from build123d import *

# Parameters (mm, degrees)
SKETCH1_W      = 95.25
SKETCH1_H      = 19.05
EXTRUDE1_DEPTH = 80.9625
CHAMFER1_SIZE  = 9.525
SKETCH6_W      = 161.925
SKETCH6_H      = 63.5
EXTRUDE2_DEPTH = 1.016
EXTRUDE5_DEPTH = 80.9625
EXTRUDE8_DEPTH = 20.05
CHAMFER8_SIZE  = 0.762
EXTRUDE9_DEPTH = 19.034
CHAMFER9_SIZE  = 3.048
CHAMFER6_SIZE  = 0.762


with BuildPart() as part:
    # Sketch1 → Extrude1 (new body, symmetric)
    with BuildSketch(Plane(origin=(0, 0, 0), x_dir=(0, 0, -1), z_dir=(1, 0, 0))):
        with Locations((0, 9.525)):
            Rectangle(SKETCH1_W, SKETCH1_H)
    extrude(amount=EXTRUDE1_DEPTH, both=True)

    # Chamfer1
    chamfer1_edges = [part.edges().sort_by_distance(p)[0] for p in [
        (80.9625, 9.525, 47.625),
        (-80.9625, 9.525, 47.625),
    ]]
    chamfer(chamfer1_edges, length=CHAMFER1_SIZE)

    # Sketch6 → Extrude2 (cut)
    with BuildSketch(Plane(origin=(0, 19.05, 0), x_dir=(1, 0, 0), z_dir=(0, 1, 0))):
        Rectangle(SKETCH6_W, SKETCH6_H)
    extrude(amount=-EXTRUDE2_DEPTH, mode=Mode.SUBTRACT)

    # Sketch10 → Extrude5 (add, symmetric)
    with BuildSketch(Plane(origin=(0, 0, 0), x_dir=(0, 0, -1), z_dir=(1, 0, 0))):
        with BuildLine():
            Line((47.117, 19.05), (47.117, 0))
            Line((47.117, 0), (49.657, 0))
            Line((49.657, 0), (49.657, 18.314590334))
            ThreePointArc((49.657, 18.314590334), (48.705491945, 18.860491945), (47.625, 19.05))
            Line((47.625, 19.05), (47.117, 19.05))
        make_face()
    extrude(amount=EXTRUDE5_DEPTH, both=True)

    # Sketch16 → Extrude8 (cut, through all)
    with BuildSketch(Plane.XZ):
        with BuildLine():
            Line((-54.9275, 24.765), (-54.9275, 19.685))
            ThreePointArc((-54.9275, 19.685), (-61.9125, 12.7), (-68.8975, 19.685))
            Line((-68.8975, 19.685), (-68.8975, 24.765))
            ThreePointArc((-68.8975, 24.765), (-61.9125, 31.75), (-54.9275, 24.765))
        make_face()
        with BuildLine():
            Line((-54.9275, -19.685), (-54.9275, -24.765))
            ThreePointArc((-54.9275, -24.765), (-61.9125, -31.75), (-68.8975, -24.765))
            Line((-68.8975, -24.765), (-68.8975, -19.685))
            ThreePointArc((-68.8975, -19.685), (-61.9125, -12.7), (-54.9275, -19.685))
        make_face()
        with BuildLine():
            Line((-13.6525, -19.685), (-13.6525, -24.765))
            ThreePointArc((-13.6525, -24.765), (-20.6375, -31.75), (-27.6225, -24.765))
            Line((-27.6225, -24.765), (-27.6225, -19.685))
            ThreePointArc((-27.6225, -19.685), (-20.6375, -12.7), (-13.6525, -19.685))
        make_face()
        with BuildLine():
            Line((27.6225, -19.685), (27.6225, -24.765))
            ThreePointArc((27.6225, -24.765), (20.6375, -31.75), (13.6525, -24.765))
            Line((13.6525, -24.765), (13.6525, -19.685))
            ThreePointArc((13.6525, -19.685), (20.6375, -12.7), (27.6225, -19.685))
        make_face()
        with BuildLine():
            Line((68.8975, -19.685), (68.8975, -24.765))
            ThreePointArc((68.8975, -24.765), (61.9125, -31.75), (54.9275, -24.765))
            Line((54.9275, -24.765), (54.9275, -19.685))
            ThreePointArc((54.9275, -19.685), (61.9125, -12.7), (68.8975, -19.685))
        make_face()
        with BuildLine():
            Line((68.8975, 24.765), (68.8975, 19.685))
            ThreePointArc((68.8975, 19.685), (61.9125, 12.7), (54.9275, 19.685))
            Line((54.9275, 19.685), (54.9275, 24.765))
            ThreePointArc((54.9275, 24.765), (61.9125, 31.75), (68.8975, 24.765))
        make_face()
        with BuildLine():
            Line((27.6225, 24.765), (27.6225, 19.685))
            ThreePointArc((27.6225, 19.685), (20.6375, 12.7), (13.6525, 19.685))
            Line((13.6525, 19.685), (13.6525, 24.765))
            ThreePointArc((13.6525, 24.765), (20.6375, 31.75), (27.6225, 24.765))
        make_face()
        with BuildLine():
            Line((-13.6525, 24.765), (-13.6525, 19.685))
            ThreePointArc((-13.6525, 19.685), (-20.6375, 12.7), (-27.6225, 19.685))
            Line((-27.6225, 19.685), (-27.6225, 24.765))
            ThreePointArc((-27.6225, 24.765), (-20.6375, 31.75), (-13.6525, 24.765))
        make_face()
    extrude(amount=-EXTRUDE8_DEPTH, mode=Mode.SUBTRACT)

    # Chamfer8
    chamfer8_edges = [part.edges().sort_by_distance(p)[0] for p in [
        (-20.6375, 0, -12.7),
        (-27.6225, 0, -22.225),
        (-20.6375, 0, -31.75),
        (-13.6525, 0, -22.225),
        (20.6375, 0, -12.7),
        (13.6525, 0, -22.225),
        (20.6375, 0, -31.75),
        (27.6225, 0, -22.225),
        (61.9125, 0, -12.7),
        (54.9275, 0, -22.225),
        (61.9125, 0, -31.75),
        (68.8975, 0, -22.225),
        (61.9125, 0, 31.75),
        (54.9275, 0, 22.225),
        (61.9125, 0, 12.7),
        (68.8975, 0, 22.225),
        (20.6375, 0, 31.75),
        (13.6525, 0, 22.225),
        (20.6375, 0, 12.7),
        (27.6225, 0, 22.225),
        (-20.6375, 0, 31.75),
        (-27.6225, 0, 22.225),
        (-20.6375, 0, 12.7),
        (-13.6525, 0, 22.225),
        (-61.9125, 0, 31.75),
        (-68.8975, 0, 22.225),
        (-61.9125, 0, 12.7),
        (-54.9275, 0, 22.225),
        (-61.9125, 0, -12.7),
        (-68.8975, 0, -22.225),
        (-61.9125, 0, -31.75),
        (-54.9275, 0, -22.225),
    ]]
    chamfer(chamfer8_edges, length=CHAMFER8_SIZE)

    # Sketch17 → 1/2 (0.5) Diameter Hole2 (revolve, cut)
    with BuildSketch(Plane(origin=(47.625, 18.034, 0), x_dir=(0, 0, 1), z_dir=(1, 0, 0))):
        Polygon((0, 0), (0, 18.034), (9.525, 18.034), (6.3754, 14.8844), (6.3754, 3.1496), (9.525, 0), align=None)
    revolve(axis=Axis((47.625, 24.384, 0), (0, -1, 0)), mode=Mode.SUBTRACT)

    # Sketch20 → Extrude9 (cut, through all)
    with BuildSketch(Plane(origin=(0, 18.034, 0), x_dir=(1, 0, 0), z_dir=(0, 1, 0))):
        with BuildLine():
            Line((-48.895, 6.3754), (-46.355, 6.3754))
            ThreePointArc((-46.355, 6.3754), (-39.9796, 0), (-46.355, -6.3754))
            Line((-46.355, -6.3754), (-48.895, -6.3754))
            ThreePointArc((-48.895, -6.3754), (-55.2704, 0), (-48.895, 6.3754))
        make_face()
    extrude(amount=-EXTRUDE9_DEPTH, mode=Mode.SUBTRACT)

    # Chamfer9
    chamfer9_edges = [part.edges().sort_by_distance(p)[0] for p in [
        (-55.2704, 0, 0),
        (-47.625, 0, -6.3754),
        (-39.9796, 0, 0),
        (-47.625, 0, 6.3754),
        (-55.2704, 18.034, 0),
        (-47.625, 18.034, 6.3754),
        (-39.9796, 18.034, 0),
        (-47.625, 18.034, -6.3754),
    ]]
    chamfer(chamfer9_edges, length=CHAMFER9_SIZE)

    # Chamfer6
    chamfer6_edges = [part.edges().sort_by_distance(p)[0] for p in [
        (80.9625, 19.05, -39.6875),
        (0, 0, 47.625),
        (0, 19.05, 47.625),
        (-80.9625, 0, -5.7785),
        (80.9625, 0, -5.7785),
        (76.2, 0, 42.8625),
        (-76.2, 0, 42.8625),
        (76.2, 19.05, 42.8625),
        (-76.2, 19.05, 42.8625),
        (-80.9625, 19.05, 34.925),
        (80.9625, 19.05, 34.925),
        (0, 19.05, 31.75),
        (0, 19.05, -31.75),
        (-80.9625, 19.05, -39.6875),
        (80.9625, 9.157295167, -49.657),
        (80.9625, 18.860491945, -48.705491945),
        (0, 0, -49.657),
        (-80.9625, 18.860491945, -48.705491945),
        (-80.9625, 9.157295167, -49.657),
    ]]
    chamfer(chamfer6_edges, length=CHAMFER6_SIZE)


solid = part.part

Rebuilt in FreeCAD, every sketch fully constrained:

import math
import FreeCAD as App
import Part
import Sketcher
Q = App.Units.Quantity


def edges_at(feature, points):
    """Names of the edges that pass closest to the given points."""
    edges = feature.Shape.Edges
    near = lambda p: min(range(len(edges)), key=lambda i: edges[i].distToShape(Part.Vertex(*p))[0])
    return sorted({f"Edge{near(p) + 1}" for p in points})

doc = App.newDocument("Part")
body = doc.addObject("PartDesign::Body", "Body")

sketch1 = body.newObject("Sketcher::SketchObject", "Sketch")
sketch1.AttachmentSupport = (doc.getObject("YZ_Plane"), [""])
sketch1.MapMode = "FlatFace"
sketch1.addGeometry([
    Part.LineSegment(App.Vector(19.05, 47.625, 0), App.Vector(0, 47.625, 0)),
    Part.LineSegment(App.Vector(0, 47.625, 0), App.Vector(0, -47.625, 0)),
    Part.LineSegment(App.Vector(0, -47.625, 0), App.Vector(19.05, -47.625, 0)),
    Part.LineSegment(App.Vector(19.05, -47.625, 0), App.Vector(19.05, 47.625, 0)),
], False)
sketch1.addConstraint([
    Sketcher.Constraint("Coincident", 0, 2, 1, 1),
    Sketcher.Constraint("Coincident", 1, 2, 2, 1),
    Sketcher.Constraint("Coincident", 2, 2, 3, 1),
    Sketcher.Constraint("Coincident", 3, 2, 0, 1),
    Sketcher.Constraint("Horizontal", 0),
    Sketcher.Constraint("Vertical", 1),
    Sketcher.Constraint("Horizontal", 2),
    Sketcher.Constraint("Vertical", 3),
    Sketcher.Constraint("Symmetric", 0, 2, 1, 2, -1, 1),
    Sketcher.Constraint("DistanceX", 0, 2, 0, 1, Q("0.75 in")),
    Sketcher.Constraint("DistanceY", 1, 2, 1, 1, Q("3.75 in")),
])
pad1 = body.newObject("PartDesign::Pad", "Pad")
pad1.Profile = sketch1
pad1.Length = Q("6.375 in")
pad1.Midplane = True
doc.recompute()

chamfer = body.newObject("PartDesign::Chamfer", "Chamfer")
chamfer.Base = (pad1, edges_at(pad1, [(80.963, 9.525, 47.625), (-80.963, 9.525, 47.625)]))
chamfer.Size = Q("0.375 in")

sketch2 = body.newObject("Sketcher::SketchObject", "Sketch001")
sketch2.AttachmentSupport = (doc.getObject("XZ_Plane"), [""])
sketch2.MapMode = "FlatFace"
sketch2.AttachmentOffset = App.Placement(App.Vector(0, 0, -0.75 * 25.4), App.Rotation())
sketch2.addGeometry([
    Part.LineSegment(App.Vector(-80.9625, -31.75, 0), App.Vector(-80.9625, 31.75, 0)),
    Part.LineSegment(App.Vector(-80.9625, 31.75, 0), App.Vector(80.9625, 31.75, 0)),
    Part.LineSegment(App.Vector(80.9625, 31.75, 0), App.Vector(80.9625, -31.75, 0)),
    Part.LineSegment(App.Vector(80.9625, -31.75, 0), App.Vector(-80.9625, -31.75, 0)),
], False)
sketch2.addConstraint([
    Sketcher.Constraint("Coincident", 0, 2, 1, 1),
    Sketcher.Constraint("Coincident", 1, 2, 2, 1),
    Sketcher.Constraint("Coincident", 2, 2, 3, 1),
    Sketcher.Constraint("Coincident", 3, 2, 0, 1),
    Sketcher.Constraint("Vertical", 0),
    Sketcher.Constraint("Horizontal", 1),
    Sketcher.Constraint("Vertical", 2),
    Sketcher.Constraint("Horizontal", 3),
    Sketcher.Constraint("Symmetric", 0, 2, 2, 2, -1, 1),
    Sketcher.Constraint("DistanceY", 0, 1, 0, 2, Q("2.5 in")),
    Sketcher.Constraint("DistanceX", 1, 1, 1, 2, Q("6.375 in")),
])
pocket1 = body.newObject("PartDesign::Pocket", "Pocket")
pocket1.Profile = sketch2
pocket1.Length = Q("0.04 in")
pocket1.Reversed = True

sketch3 = body.newObject("Sketcher::SketchObject", "Sketch002")
sketch3.AttachmentSupport = (doc.getObject("YZ_Plane"), [""])
sketch3.MapMode = "FlatFace"
sketch3.addGeometry([
    Part.LineSegment(App.Vector(19.05, -47.117, 0), App.Vector(0, -47.117, 0)),
    Part.LineSegment(App.Vector(0, -47.117, 0), App.Vector(0, -49.657, 0)),
    Part.LineSegment(App.Vector(0, -49.657, 0), App.Vector(18.31459, -49.657, 0)),
    Part.ArcOfCircle(Part.Circle(App.Vector(15.875, -47.625, 0), App.Vector(0, 0, 1), 3.175), math.radians(-39.791819), math.radians(0)),
    Part.LineSegment(App.Vector(19.05, -47.625, 0), App.Vector(19.05, -47.117, 0)),
], False)
sketch3.addConstraint([
    Sketcher.Constraint("Coincident", 0, 2, 1, 1),
    Sketcher.Constraint("Coincident", 1, 2, 2, 1),
    Sketcher.Constraint("Coincident", 2, 2, 3, 1),
    Sketcher.Constraint("Tangent", 3, 2, 4, 1),
    Sketcher.Constraint("Coincident", 4, 2, 0, 1),
    Sketcher.Constraint("Horizontal", 0),
    Sketcher.Constraint("Vertical", 1),
    Sketcher.Constraint("Horizontal", 2),
    Sketcher.Constraint("Vertical", 4),
    Sketcher.Constraint("PointOnObject", 0, 2, -2),
    Sketcher.Constraint("DistanceY", 1, 2, 1, 1, Q("0.1 in")),
    Sketcher.Constraint("Radius", 3, Q("0.125 in")),
    Sketcher.Constraint("DistanceX", 0, 2, 0, 1, Q("0.75 in")),
    Sketcher.Constraint("DistanceY", 4, 1, 4, 2, Q("0.02 in")),
    Sketcher.Constraint("DistanceY", 3, 3, -1, 1, Q("1.875 in")),
])
pad2 = body.newObject("PartDesign::Pad", "Pad001")
pad2.Profile = sketch3
pad2.Length = Q("6.375 in")
pad2.Midplane = True

sketch4 = body.newObject("Sketcher::SketchObject", "Sketch003")
sketch4.AttachmentSupport = (doc.getObject("XZ_Plane"), [""])
sketch4.MapMode = "FlatFace"
sketch4.addGeometry([
    Part.LineSegment(App.Vector(-54.9275, 19.685, 0), App.Vector(-54.9275, 24.765, 0)),
    Part.ArcOfCircle(Part.Circle(App.Vector(-61.9125, 24.765, 0), App.Vector(0, 0, 1), 6.985), math.radians(0), math.radians(180)),
    Part.LineSegment(App.Vector(-68.8975, 24.765, 0), App.Vector(-68.8975, 19.685, 0)),
    Part.ArcOfCircle(Part.Circle(App.Vector(-61.9125, 19.685, 0), App.Vector(0, 0, 1), 6.985), math.radians(180), math.radians(360)),
    Part.LineSegment(App.Vector(-54.9275, -24.765, 0), App.Vector(-54.9275, -19.685, 0)),
    Part.ArcOfCircle(Part.Circle(App.Vector(-61.9125, -19.685, 0), App.Vector(0, 0, 1), 6.985), math.radians(0), math.radians(180)),
    Part.LineSegment(App.Vector(-68.8975, -19.685, 0), App.Vector(-68.8975, -24.765, 0)),
    Part.ArcOfCircle(Part.Circle(App.Vector(-61.9125, -24.765, 0), App.Vector(0, 0, 1), 6.985), math.radians(180), math.radians(360)),
    Part.LineSegment(App.Vector(-13.6525, -24.765, 0), App.Vector(-13.6525, -19.685, 0)),
    Part.ArcOfCircle(Part.Circle(App.Vector(-20.6375, -19.685, 0), App.Vector(0, 0, 1), 6.985), math.radians(0), math.radians(180)),
    Part.LineSegment(App.Vector(-27.6225, -19.685, 0), App.Vector(-27.6225, -24.765, 0)),
    Part.ArcOfCircle(Part.Circle(App.Vector(-20.6375, -24.765, 0), App.Vector(0, 0, 1), 6.985), math.radians(180), math.radians(360)),
    Part.LineSegment(App.Vector(27.6225, -24.765, 0), App.Vector(27.6225, -19.685, 0)),
    Part.ArcOfCircle(Part.Circle(App.Vector(20.6375, -19.685, 0), App.Vector(0, 0, 1), 6.985), math.radians(0), math.radians(180)),
    Part.LineSegment(App.Vector(13.6525, -19.685, 0), App.Vector(13.6525, -24.765, 0)),
    Part.ArcOfCircle(Part.Circle(App.Vector(20.6375, -24.765, 0), App.Vector(0, 0, 1), 6.985), math.radians(180), math.radians(360)),
    Part.LineSegment(App.Vector(68.8975, -24.765, 0), App.Vector(68.8975, -19.685, 0)),
    Part.ArcOfCircle(Part.Circle(App.Vector(61.9125, -19.685, 0), App.Vector(0, 0, 1), 6.985), math.radians(0), math.radians(180)),
    Part.LineSegment(App.Vector(54.9275, -19.685, 0), App.Vector(54.9275, -24.765, 0)),
    Part.ArcOfCircle(Part.Circle(App.Vector(61.9125, -24.765, 0), App.Vector(0, 0, 1), 6.985), math.radians(180), math.radians(360)),
    Part.LineSegment(App.Vector(68.8975, 19.685, 0), App.Vector(68.8975, 24.765, 0)),
    Part.ArcOfCircle(Part.Circle(App.Vector(61.9125, 24.765, 0), App.Vector(0, 0, 1), 6.985), math.radians(0), math.radians(180)),
    Part.LineSegment(App.Vector(54.9275, 24.765, 0), App.Vector(54.9275, 19.685, 0)),
    Part.ArcOfCircle(Part.Circle(App.Vector(61.9125, 19.685, 0), App.Vector(0, 0, 1), 6.985), math.radians(180), math.radians(360)),
    Part.LineSegment(App.Vector(27.6225, 19.685, 0), App.Vector(27.6225, 24.765, 0)),
    Part.ArcOfCircle(Part.Circle(App.Vector(20.6375, 24.765, 0), App.Vector(0, 0, 1), 6.985), math.radians(0), math.radians(180)),
    Part.LineSegment(App.Vector(13.6525, 24.765, 0), App.Vector(13.6525, 19.685, 0)),
    Part.ArcOfCircle(Part.Circle(App.Vector(20.6375, 19.685, 0), App.Vector(0, 0, 1), 6.985), math.radians(180), math.radians(360)),
    Part.LineSegment(App.Vector(-13.6525, 19.685, 0), App.Vector(-13.6525, 24.765, 0)),
    Part.ArcOfCircle(Part.Circle(App.Vector(-20.6375, 24.765, 0), App.Vector(0, 0, 1), 6.985), math.radians(0), math.radians(180)),
    Part.LineSegment(App.Vector(-27.6225, 24.765, 0), App.Vector(-27.6225, 19.685, 0)),
    Part.ArcOfCircle(Part.Circle(App.Vector(-20.6375, 19.685, 0), App.Vector(0, 0, 1), 6.985), math.radians(180), math.radians(360)),
], False)
sketch4.addConstraint([
    Sketcher.Constraint("Tangent", 0, 2, 1, 1),
    Sketcher.Constraint("Tangent", 1, 2, 2, 1),
    Sketcher.Constraint("Tangent", 2, 2, 3, 1),
    Sketcher.Constraint("Tangent", 3, 2, 0, 1),
    Sketcher.Constraint("Tangent", 4, 2, 5, 1),
    Sketcher.Constraint("Tangent", 5, 2, 6, 1),
    Sketcher.Constraint("Tangent", 6, 2, 7, 1),
    Sketcher.Constraint("Tangent", 7, 2, 4, 1),
    Sketcher.Constraint("Tangent", 8, 2, 9, 1),
    Sketcher.Constraint("Tangent", 9, 2, 10, 1),
    Sketcher.Constraint("Tangent", 10, 2, 11, 1),
    Sketcher.Constraint("Tangent", 11, 2, 8, 1),
    Sketcher.Constraint("Tangent", 12, 2, 13, 1),
    Sketcher.Constraint("Tangent", 13, 2, 14, 1),
    Sketcher.Constraint("Tangent", 14, 2, 15, 1),
    Sketcher.Constraint("Tangent", 15, 2, 12, 1),
    Sketcher.Constraint("Tangent", 16, 2, 17, 1),
    Sketcher.Constraint("Tangent", 17, 2, 18, 1),
    Sketcher.Constraint("Tangent", 18, 2, 19, 1),
    Sketcher.Constraint("Tangent", 19, 2, 16, 1),
    Sketcher.Constraint("Tangent", 20, 2, 21, 1),
    Sketcher.Constraint("Tangent", 21, 2, 22, 1),
    Sketcher.Constraint("Tangent", 22, 2, 23, 1),
    Sketcher.Constraint("Tangent", 23, 2, 20, 1),
    Sketcher.Constraint("Tangent", 24, 2, 25, 1),
    Sketcher.Constraint("Tangent", 25, 2, 26, 1),
    Sketcher.Constraint("Tangent", 26, 2, 27, 1),
    Sketcher.Constraint("Tangent", 27, 2, 24, 1),
    Sketcher.Constraint("Tangent", 28, 2, 29, 1),
    Sketcher.Constraint("Tangent", 29, 2, 30, 1),
    Sketcher.Constraint("Tangent", 30, 2, 31, 1),
    Sketcher.Constraint("Tangent", 31, 2, 28, 1),
    Sketcher.Constraint("Vertical", 0),
    Sketcher.Constraint("Vertical", 2),
    Sketcher.Constraint("Vertical", 4),
    Sketcher.Constraint("Vertical", 6),
    Sketcher.Constraint("Vertical", 8),
    Sketcher.Constraint("Vertical", 10),
    Sketcher.Constraint("Vertical", 12),
    Sketcher.Constraint("Vertical", 14),
    Sketcher.Constraint("Vertical", 16),
    Sketcher.Constraint("Vertical", 18),
    Sketcher.Constraint("Vertical", 20),
    Sketcher.Constraint("Vertical", 22),
    Sketcher.Constraint("Vertical", 24),
    Sketcher.Constraint("Vertical", 26),
    Sketcher.Constraint("Vertical", 28),
    Sketcher.Constraint("Vertical", 30),
    Sketcher.Constraint("Equal", 3, 5),
    Sketcher.Constraint("Equal", 7, 9),
    Sketcher.Constraint("Equal", 11, 13),
    Sketcher.Constraint("Equal", 15, 17),
    Sketcher.Constraint("Equal", 19, 21),
    Sketcher.Constraint("Equal", 23, 25),
    Sketcher.Constraint("Equal", 27, 29),
    Sketcher.Constraint("Symmetric", 3, 3, 17, 3, -1, 1),
    Sketcher.Constraint("Symmetric", 7, 3, 21, 3, -1, 1),
    Sketcher.Constraint("Symmetric", 11, 3, 25, 3, -1, 1),
    Sketcher.Constraint("Symmetric", 15, 3, 29, 3, -1, 1),
    Sketcher.Constraint("Symmetric", 9, 3, 13, 3, -2),
    Sketcher.Constraint("Symmetric", 5, 3, 17, 3, -2),
    Sketcher.Constraint("Horizontal", 5, 3, 9, 3),
    Sketcher.Constraint("Horizontal", 7, 3, 11, 3),
    Sketcher.Constraint("Horizontal", 11, 3, 15, 3),
    Sketcher.Constraint("Horizontal", 15, 3, 19, 3),
    Sketcher.Constraint("Horizontal", 1, 3, 21, 3),
    Sketcher.Constraint("Horizontal", 3, 3, 23, 3),
    Sketcher.Constraint("Horizontal", 23, 3, 27, 3),
    Sketcher.Constraint("Horizontal", 27, 3, 31, 3),
    Sketcher.Constraint("DistanceY", 0, 1, 0, 2, Q("0.2 in")),
    Sketcher.Constraint("Radius", 1, Q("0.275 in")),
    Sketcher.Constraint("DistanceX", 1, 2, 29, 3, Q("1.9 in")),
    Sketcher.Constraint("DistanceY", 5, 3, 3, 3, Q("1.55 in")),
    Sketcher.Constraint("DistanceX", 5, 3, 13, 3, Q("3.25 in")),
])
pocket2 = body.newObject("PartDesign::Pocket", "Pocket001")
pocket2.Profile = sketch4
pocket2.Type = "ThroughAll"
doc.recompute()

chamfer2 = body.newObject("PartDesign::Chamfer", "Chamfer001")
chamfer2.Base = (pocket2, edges_at(pocket2, [
    (-20.637, 0, -12.7),
    (-27.622, 0, -22.225),
    (-20.637, 0, -31.75),
    (-13.652, 0, -22.225),
    (20.637, 0, -12.7),
    (13.652, 0, -22.225),
    (20.637, 0, -31.75),
    (27.622, 0, -22.225),
    (61.913, 0, -12.7),
    (54.928, 0, -22.225),
    (61.913, 0, -31.75),
    (68.897, 0, -22.225),
    (61.913, 0, 31.75),
    (54.928, 0, 22.225),
    (61.913, 0, 12.7),
    (68.897, 0, 22.225),
    (20.637, 0, 31.75),
    (13.652, 0, 22.225),
    (20.637, 0, 12.7),
    (27.622, 0, 22.225),
    (-20.637, 0, 31.75),
    (-27.622, 0, 22.225),
    (-20.637, 0, 12.7),
    (-13.652, 0, 22.225),
    (-61.913, 0, 31.75),
    (-68.897, 0, 22.225),
    (-61.913, 0, 12.7),
    (-54.928, 0, 22.225),
    (-61.913, 0, -12.7),
    (-68.897, 0, -22.225),
    (-61.913, 0, -31.75),
    (-54.928, 0, -22.225),
]))
chamfer2.Size = Q("0.03 in")

sketch5 = body.newObject("Sketcher::SketchObject", "Sketch004")
sketch5.AttachmentSupport = (doc.getObject("YZ_Plane"), [""])
sketch5.MapMode = "FlatFace"
sketch5.AttachmentOffset = App.Placement(App.Vector(0, 0, 1.875 * 25.4), App.Rotation())
sketch5.addGeometry([
    Part.LineSegment(App.Vector(0, 0, 0), App.Vector(18.034, 0, 0)),
    Part.LineSegment(App.Vector(18.034, 0, 0), App.Vector(18.034, 9.525, 0)),
    Part.LineSegment(App.Vector(18.034, 9.525, 0), App.Vector(14.8844, 6.3754, 0)),
    Part.LineSegment(App.Vector(14.8844, 6.3754, 0), App.Vector(3.1496, 6.3754, 0)),
    Part.LineSegment(App.Vector(3.1496, 6.3754, 0), App.Vector(0, 9.525, 0)),
    Part.LineSegment(App.Vector(0, 9.525, 0), App.Vector(0, 0, 0)),
], False)
sketch5.addConstraint([
    Sketcher.Constraint("Coincident", 0, 2, 1, 1),
    Sketcher.Constraint("Coincident", 1, 2, 2, 1),
    Sketcher.Constraint("Coincident", 2, 2, 3, 1),
    Sketcher.Constraint("Coincident", 3, 2, 4, 1),
    Sketcher.Constraint("Coincident", 4, 2, 5, 1),
    Sketcher.Constraint("Coincident", 5, 2, 0, 1),
    Sketcher.Constraint("Horizontal", 0),
    Sketcher.Constraint("Vertical", 1),
    Sketcher.Constraint("Horizontal", 3),
    Sketcher.Constraint("Vertical", 5),
    Sketcher.Constraint("Coincident", 5, 2, -1, 1),
    Sketcher.Constraint("Perpendicular", 2, 4),
    Sketcher.Constraint("Horizontal", 1, 2, 4, 2),
    Sketcher.Constraint("Equal", 2, 4),
    Sketcher.Constraint("DistanceX", 0, 1, 0, 2, Q("0.71 in")),
    Sketcher.Constraint("DistanceX", 3, 2, 3, 1, Q("0.462 in")),
    Sketcher.Constraint("DistanceY", 1, 1, 1, 2, Q("0.375 in")),
])
groove = body.newObject("PartDesign::Groove", "Groove")
groove.Profile = sketch5
groove.ReferenceAxis = (sketch5, ["H_Axis"])
groove.Angle = 360

sketch6 = body.newObject("Sketcher::SketchObject", "Sketch005")
sketch6.AttachmentSupport = (doc.getObject("XZ_Plane"), [""])
sketch6.MapMode = "FlatFace"
sketch6.AttachmentOffset = App.Placement(App.Vector(0, 0, -0.71 * 25.4), App.Rotation())
sketch6.addGeometry([
    Part.LineSegment(App.Vector(-46.355, -6.3754, 0), App.Vector(-48.895, -6.3754, 0)),
    Part.ArcOfCircle(Part.Circle(App.Vector(-48.895, 0, 0), App.Vector(0, 0, 1), 6.3754), math.radians(90), math.radians(270)),
    Part.LineSegment(App.Vector(-48.895, 6.3754, 0), App.Vector(-46.355, 6.3754, 0)),
    Part.ArcOfCircle(Part.Circle(App.Vector(-46.355, 0, 0), App.Vector(0, 0, 1), 6.3754), math.radians(-90), math.radians(90)),
], False)
sketch6.addConstraint([
    Sketcher.Constraint("Tangent", 0, 2, 1, 2),
    Sketcher.Constraint("Tangent", 1, 1, 2, 1),
    Sketcher.Constraint("Tangent", 2, 2, 3, 2),
    Sketcher.Constraint("Tangent", 3, 1, 0, 1),
    Sketcher.Constraint("Horizontal", 0),
    Sketcher.Constraint("Horizontal", 2),
    Sketcher.Constraint("PointOnObject", 1, 3, -1),
    Sketcher.Constraint("DistanceX", 0, 2, 0, 1, Q("0.1 in")),
    Sketcher.Constraint("Radius", 1, Q("0.251 in")),
    Sketcher.Constraint("DistanceX", 1, 3, -1, 1, Q("1.925 in")),
])
pocket3 = body.newObject("PartDesign::Pocket", "Pocket002")
pocket3.Profile = sketch6
pocket3.Type = "ThroughAll"
pocket3.Reversed = True
doc.recompute()

chamfer3 = body.newObject("PartDesign::Chamfer", "Chamfer002")
chamfer3.Base = (pocket3, edges_at(pocket3, [
    (-55.27, 0, 0),
    (-47.625, 0, -6.375),
    (-39.98, 0, 0),
    (-47.625, 0, 6.375),
    (-55.27, 18.034, 0),
    (-47.625, 18.034, 6.375),
    (-39.98, 18.034, 0),
    (-47.625, 18.034, -6.375),
]))
chamfer3.Size = Q("0.12 in")
doc.recompute()

chamfer4 = body.newObject("PartDesign::Chamfer", "Chamfer003")
chamfer4.Base = (chamfer3, edges_at(chamfer3, [
    (80.963, 19.05, -39.688),
    (0, 0, 47.625),
    (0, 19.05, 47.625),
    (-80.963, 0, -5.779),
    (80.963, 0, -5.779),
    (76.2, 0, 42.862),
    (-76.2, 0, 42.862),
    (76.2, 19.05, 42.862),
    (-76.2, 19.05, 42.862),
    (-80.963, 19.05, 34.925),
    (80.963, 19.05, 34.925),
    (0, 19.05, 31.75),
    (0, 19.05, -31.75),
    (-80.963, 19.05, -39.688),
    (80.963, 9.157, -49.657),
    (80.963, 18.86, -48.705),
    (0, 0, -49.657),
    (-80.963, 18.86, -48.705),
    (-80.963, 9.157, -49.657),
]))
chamfer4.Size = Q("0.03 in")

doc.recompute()
